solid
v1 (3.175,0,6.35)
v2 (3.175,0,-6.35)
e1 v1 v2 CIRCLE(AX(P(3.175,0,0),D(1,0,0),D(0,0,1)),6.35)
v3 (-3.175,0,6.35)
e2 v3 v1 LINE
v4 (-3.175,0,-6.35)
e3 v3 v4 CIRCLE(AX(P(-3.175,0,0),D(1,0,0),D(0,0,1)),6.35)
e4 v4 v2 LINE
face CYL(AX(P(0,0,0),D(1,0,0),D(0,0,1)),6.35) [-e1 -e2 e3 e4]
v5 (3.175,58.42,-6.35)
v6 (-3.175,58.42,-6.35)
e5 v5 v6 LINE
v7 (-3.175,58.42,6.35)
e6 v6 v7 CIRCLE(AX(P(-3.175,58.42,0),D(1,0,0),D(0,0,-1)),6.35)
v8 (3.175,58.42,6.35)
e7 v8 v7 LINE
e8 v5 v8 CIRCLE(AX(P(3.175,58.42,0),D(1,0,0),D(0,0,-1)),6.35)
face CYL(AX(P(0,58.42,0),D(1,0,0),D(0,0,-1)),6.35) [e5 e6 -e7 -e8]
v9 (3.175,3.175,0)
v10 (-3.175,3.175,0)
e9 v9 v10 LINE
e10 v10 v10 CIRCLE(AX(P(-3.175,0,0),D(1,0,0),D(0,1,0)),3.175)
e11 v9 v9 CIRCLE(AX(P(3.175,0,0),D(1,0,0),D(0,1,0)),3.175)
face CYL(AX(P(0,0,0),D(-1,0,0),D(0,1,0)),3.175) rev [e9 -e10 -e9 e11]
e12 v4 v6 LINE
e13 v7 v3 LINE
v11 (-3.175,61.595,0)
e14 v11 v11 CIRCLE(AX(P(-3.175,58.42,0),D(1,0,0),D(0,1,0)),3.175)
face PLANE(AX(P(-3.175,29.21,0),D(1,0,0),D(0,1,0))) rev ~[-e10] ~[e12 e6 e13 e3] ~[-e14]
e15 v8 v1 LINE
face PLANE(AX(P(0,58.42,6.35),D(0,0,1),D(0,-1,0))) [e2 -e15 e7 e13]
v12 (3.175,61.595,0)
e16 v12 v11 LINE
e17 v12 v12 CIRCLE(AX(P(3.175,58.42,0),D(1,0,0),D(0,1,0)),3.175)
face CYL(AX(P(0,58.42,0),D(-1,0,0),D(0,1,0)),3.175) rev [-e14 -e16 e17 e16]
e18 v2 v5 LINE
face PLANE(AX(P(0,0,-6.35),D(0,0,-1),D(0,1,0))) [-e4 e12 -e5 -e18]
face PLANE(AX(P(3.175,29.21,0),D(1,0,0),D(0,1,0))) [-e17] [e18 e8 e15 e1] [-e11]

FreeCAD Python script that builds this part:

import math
import FreeCAD as App
import Part
import Sketcher

V = App.Vector
Q = App.Units.Quantity

doc = App.newDocument("Part")
body = doc.addObject("PartDesign::Body", "Body")

# Sketch on YZ plane
sketch1 = body.newObject("Sketcher::SketchObject", "Sketch")
sketch1.AttachmentSupport = (doc.getObject("YZ_Plane"), [""])
sketch1.MapMode = "FlatFace"
sketch1.addGeometry([
    Part.LineSegment(V(58.4, 6.3, 0), V(0, 6.3, 0)),  # 0
    Part.ArcOfCircle(Part.Circle(V(0, 0, 0), V(0, 0, 1), 6.3), math.radians(90), math.radians(270)),  # 1
    Part.LineSegment(V(0, -6.3, 0), V(58.4, -6.3, 0)),  # 2
    Part.ArcOfCircle(Part.Circle(V(58.4, 0, 0), V(0, 0, 1), 6.3), math.radians(-90), math.radians(90)),  # 3
    Part.Circle(V(0, 0, 0), V(0, 0, 1), 3.2),  # 4
    Part.Circle(V(58.4, 0, 0), V(0, 0, 1), 3.2),  # 5
], False)
sketch1.addConstraint([
    Sketcher.Constraint("Tangent", 0, 2, 1, 1),
    Sketcher.Constraint("Tangent", 1, 2, 2, 1),
    Sketcher.Constraint("Tangent", 2, 2, 3, 1),
    Sketcher.Constraint("Tangent", 3, 2, 0, 1),
    Sketcher.Constraint("Horizontal", 0),
    Sketcher.Constraint("Horizontal", 2),
    Sketcher.Constraint("Coincident", 1, 3, -1, 1),
    Sketcher.Constraint("Coincident", 4, 3, -1, 1),
    Sketcher.Constraint("Coincident", 5, 3, 3, 3),
    Sketcher.Constraint("Equal", 4, 5),
    Sketcher.Constraint("Diameter", 4, Q("0.25 in")),
    Sketcher.Constraint("Radius", 1, Q("0.25 in")),
    Sketcher.Constraint("DistanceX", 0, 2, 0, 1, Q("2.3 in")),
])
pad1 = body.newObject("PartDesign::Pad", "Pad")
pad1.Profile = sketch1
pad1.Length = Q("0.25 in")
pad1.Midplane = True

doc.recompute()
